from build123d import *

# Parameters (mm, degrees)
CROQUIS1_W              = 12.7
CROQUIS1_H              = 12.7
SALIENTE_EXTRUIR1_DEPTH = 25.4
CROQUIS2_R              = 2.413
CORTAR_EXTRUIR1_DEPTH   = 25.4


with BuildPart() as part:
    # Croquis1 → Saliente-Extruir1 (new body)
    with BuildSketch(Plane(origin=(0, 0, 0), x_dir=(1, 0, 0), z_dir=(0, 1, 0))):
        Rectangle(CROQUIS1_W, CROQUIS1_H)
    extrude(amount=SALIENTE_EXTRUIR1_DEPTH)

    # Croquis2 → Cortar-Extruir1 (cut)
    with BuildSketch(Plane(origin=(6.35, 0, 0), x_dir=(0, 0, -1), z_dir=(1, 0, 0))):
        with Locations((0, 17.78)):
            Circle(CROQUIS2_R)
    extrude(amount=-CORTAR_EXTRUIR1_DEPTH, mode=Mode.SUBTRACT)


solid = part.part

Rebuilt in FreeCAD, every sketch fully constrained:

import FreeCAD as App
import Part
import Sketcher

V = App.Vector
Q = App.Units.Quantity


def add_polygon(sketch, points):
    """Adds a closed chain of lines whose ends are joined by coincident constraints."""
    first, n = sketch.GeometryCount, len(points)
    for a, b in zip(points, points[1:] + points[:1]):
        sketch.addGeometry(Part.LineSegment(App.Vector(*a, 0), App.Vector(*b, 0)), False)
    for i in range(n):
        sketch.addConstraint(Sketcher.Constraint("Coincident", first + i, 2, first + (i + 1) % n, 1))

doc = App.newDocument("Part")
body = doc.addObject("PartDesign::Body", "Body")

# Sketch on XZ plane
sketch1 = body.newObject("Sketcher::SketchObject", "Sketch")
sketch1.AttachmentSupport = (doc.getObject("XZ_Plane"), [""])
sketch1.MapMode = "FlatFace"
add_polygon(sketch1, [(-6, -6), (-6, 6), (6, 6), (6, -6)])  # lines 0-3
sketch1.addConstraint([
    Sketcher.Constraint("Vertical", 0),
    Sketcher.Constraint("Horizontal", 1),
    Sketcher.Constraint("Vertical", 2),
    Sketcher.Constraint("Horizontal", 3),
    Sketcher.Constraint("Symmetric", 0, 2, 2, 2, -1, 1),
    Sketcher.Constraint("Equal", 3, 0),
    Sketcher.Constraint("DistanceX", 1, 1, 1, 2, Q("0.5 in")),
])
pad1 = body.newObject("PartDesign::Pad", "Pad")
pad1.Profile = sketch1
pad1.Length = Q("1 in")
pad1.Reversed = True

# Sketch on YZ plane
sketch2 = body.newObject("Sketcher::SketchObject", "Sketch001")
sketch2.AttachmentSupport = (doc.getObject("YZ_Plane"), [""])
sketch2.MapMode = "FlatFace"
sketch2.AttachmentOffset = App.Placement(V(0, 0, 0.25 * 25.4), App.Rotation())
sketch2.addGeometry(Part.Circle(V(17.8, 0, 0), V(0, 0, 1), 2.4), False)
sketch2.addConstraint([
    Sketcher.Constraint("PointOnObject", 0, 3, -1),
    Sketcher.Constraint("Diameter", 0, Q("0.19 in")),
    Sketcher.Constraint("DistanceX", -1, 1, 0, 3, Q("0.7 in")),
])
pocket1 = body.newObject("PartDesign::Pocket", "Pocket")
pocket1.Profile = sketch2
pocket1.Length = Q("1 in")

doc.recompute()
